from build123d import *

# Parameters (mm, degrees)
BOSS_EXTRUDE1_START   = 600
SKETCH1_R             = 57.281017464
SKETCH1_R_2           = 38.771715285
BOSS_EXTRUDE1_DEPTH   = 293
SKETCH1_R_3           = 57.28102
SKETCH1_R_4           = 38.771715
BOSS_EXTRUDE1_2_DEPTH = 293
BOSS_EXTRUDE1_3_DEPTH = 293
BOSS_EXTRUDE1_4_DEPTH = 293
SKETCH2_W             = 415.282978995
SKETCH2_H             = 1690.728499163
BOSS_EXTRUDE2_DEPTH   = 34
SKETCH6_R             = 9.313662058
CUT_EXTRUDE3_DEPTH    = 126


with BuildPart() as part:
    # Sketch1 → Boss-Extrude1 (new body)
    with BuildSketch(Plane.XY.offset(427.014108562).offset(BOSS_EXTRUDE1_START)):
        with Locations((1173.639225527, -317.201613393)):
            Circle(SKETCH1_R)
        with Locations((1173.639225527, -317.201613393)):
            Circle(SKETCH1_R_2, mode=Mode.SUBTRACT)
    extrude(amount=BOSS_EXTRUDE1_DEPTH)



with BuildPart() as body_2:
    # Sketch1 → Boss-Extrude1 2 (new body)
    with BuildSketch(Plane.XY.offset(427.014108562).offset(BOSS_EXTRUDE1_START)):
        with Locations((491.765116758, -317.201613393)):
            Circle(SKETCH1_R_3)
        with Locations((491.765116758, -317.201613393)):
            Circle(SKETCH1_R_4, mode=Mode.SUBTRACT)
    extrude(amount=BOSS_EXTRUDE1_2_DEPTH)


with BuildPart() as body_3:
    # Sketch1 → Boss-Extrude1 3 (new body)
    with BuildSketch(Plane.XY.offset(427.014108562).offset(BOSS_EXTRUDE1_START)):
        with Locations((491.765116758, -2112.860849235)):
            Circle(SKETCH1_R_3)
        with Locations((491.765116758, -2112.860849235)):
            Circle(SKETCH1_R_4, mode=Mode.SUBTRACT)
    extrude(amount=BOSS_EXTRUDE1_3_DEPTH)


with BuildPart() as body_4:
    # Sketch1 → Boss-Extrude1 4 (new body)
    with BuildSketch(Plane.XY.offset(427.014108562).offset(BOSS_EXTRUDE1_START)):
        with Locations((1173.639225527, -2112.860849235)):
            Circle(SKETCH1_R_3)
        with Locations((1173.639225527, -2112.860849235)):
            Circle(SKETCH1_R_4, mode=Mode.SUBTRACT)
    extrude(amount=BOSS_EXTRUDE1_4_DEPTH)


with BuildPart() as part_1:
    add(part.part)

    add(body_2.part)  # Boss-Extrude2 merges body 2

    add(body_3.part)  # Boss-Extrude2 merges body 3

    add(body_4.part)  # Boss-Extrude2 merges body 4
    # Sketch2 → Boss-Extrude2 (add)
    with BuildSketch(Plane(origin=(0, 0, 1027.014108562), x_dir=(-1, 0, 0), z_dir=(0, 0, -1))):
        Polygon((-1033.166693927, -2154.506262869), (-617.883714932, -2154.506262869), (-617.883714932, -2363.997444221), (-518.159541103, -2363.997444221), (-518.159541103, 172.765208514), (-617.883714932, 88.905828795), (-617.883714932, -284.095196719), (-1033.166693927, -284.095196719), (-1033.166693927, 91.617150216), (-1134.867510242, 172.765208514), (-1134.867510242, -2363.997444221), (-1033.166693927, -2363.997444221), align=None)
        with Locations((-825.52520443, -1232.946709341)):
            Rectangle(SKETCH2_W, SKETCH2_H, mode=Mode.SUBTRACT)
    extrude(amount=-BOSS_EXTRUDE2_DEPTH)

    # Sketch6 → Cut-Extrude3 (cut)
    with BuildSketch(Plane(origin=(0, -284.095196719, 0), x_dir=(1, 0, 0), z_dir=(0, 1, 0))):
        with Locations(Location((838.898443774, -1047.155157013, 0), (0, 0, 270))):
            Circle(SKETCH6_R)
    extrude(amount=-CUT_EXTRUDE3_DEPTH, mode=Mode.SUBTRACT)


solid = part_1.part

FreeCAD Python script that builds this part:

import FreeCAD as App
import Part
import Sketcher
from FreeCAD import Vector


def add_polygon(sketch, points):
    """Adds a closed chain of lines whose ends are joined by coincident constraints."""
    first, n = sketch.GeometryCount, len(points)
    for a, b in zip(points, points[1:] + points[:1]):
        sketch.addGeometry(Part.LineSegment(App.Vector(*a, 0), App.Vector(*b, 0)), False)
    for i in range(n):
        sketch.addConstraint(Sketcher.Constraint("Coincident", first + i, 2, first + (i + 1) % n, 1))

doc = App.newDocument("Part")
body = doc.addObject("PartDesign::Body", "Body")

sketch1 = body.newObject("Sketcher::SketchObject", "Sketch")
sketch1.AttachmentSupport = (doc.getObject("XY_Plane"), [""])
sketch1.MapMode = "FlatFace"
sketch1.AttachmentOffset = App.Placement(Vector(0, 0, 1027.014109), App.Rotation())
sketch1.addGeometry(Part.Circle(Vector(1173.639226, -317.201613, 0), Vector(0, 0, 1), 57.281017), False)
sketch1.addGeometry(Part.Circle(Vector(1173.639226, -317.201613, 0), Vector(0, 0, 1), 38.771715), False)
sketch1.addConstraint(Sketcher.Constraint("Coincident", 1, 3, 0, 3))
sketch1.addConstraint(Sketcher.Constraint("Diameter", 1, 77.543431))
sketch1.addConstraint(Sketcher.Constraint("Diameter", 0, 114.562035))
sketch1.addConstraint(Sketcher.Constraint("DistanceX", -1, 1, 0, 3, 1173.639226))
sketch1.addConstraint(Sketcher.Constraint("DistanceY", 0, 3, -1, 1, 317.201613))
pad1 = body.newObject("PartDesign::Pad", "Pad")
pad1.Profile = sketch1
pad1.Length = 293
body2 = doc.addObject("PartDesign::Body", "Body001")

sketch2 = body2.newObject("Sketcher::SketchObject", "Sketch001")
sketch2.AttachmentSupport = (doc.getObject("XY_Plane001"), [""])
sketch2.MapMode = "FlatFace"
sketch2.AttachmentOffset = App.Placement(Vector(0, 0, 1027.014109), App.Rotation())
sketch2.addGeometry(Part.Circle(Vector(491.765117, -317.201613, 0), Vector(0, 0, 1), 57.28102), False)
sketch2.addGeometry(Part.Circle(Vector(491.765117, -317.201613, 0), Vector(0, 0, 1), 38.771715), False)
sketch2.addConstraint(Sketcher.Constraint("Coincident", 1, 3, 0, 3))
sketch2.addConstraint(Sketcher.Constraint("Diameter", 0, 114.56204))
sketch2.addConstraint(Sketcher.Constraint("Diameter", 1, 77.54343))
sketch2.addConstraint(Sketcher.Constraint("DistanceX", -1, 1, 0, 3, 491.765117))
sketch2.addConstraint(Sketcher.Constraint("DistanceY", 0, 3, -1, 1, 317.201613))
pad2 = body2.newObject("PartDesign::Pad", "Pad001")
pad2.Profile = sketch2
pad2.Length = 293
body3 = doc.addObject("PartDesign::Body", "Body002")

sketch3 = body3.newObject("Sketcher::SketchObject", "Sketch002")
sketch3.AttachmentSupport = (doc.getObject("XY_Plane002"), [""])
sketch3.MapMode = "FlatFace"
sketch3.AttachmentOffset = App.Placement(Vector(0, 0, 1027.014109), App.Rotation())
sketch3.addGeometry(Part.Circle(Vector(491.765117, -2112.860849, 0), Vector(0, 0, 1), 57.28102), False)
sketch3.addGeometry(Part.Circle(Vector(491.765117, -2112.860849, 0), Vector(0, 0, 1), 38.771715), False)
sketch3.addConstraint(Sketcher.Constraint("Coincident", 1, 3, 0, 3))
sketch3.addConstraint(Sketcher.Constraint("Diameter", 0, 114.56204))
sketch3.addConstraint(Sketcher.Constraint("Diameter", 1, 77.54343))
sketch3.addConstraint(Sketcher.Constraint("DistanceY", 0, 3, -1, 1, 2112.860849))
sketch3.addConstraint(Sketcher.Constraint("DistanceX", -1, 1, 0, 3, 491.765117))
pad3 = body3.newObject("PartDesign::Pad", "Pad002")
pad3.Profile = sketch3
pad3.Length = 293
body4 = doc.addObject("PartDesign::Body", "Body003")

sketch4 = body4.newObject("Sketcher::SketchObject", "Sketch003")
sketch4.AttachmentSupport = (doc.getObject("XY_Plane003"), [""])
sketch4.MapMode = "FlatFace"
sketch4.AttachmentOffset = App.Placement(Vector(0, 0, 1027.014109), App.Rotation())
sketch4.addGeometry(Part.Circle(Vector(1173.639226, -2112.860849, 0), Vector(0, 0, 1), 57.28102), False)
sketch4.addGeometry(Part.Circle(Vector(1173.639226, -2112.860849, 0), Vector(0, 0, 1), 38.771715), False)
sketch4.addConstraint(Sketcher.Constraint("Coincident", 1, 3, 0, 3))
sketch4.addConstraint(Sketcher.Constraint("Diameter", 0, 114.56204))
sketch4.addConstraint(Sketcher.Constraint("Diameter", 1, 77.54343))
sketch4.addConstraint(Sketcher.Constraint("DistanceY", 0, 3, -1, 1, 2112.860849))
sketch4.addConstraint(Sketcher.Constraint("DistanceX", -1, 1, 0, 3, 1173.639226))
pad4 = body4.newObject("PartDesign::Pad", "Pad003")
pad4.Profile = sketch4
pad4.Length = 293
body.AllowCompound = True
doc.recompute()

boolean = body.newObject("PartDesign::Boolean", "Boolean")
boolean.Type = "Fuse"
boolean.addObjects([body2])
doc.recompute()

boolean2 = body.newObject("PartDesign::Boolean", "Boolean001")
boolean2.Type = "Fuse"
boolean2.addObjects([body3])
doc.recompute()

boolean3 = body.newObject("PartDesign::Boolean", "Boolean002")
boolean3.Type = "Fuse"
boolean3.addObjects([body4])

sketch5 = body.newObject("Sketcher::SketchObject", "Sketch004")
sketch5.AttachmentSupport = (doc.getObject("XY_Plane"), [""])
sketch5.MapMode = "FlatFace"
sketch5.AttachmentOffset = App.Placement(Vector(0, 0, 1027.014109), App.Rotation())
add_polygon(sketch5, [(1033.166694, -2154.506263), (617.883715, -2154.506263), (617.883715, -2363.997444), (518.159541, -2363.997444), (518.159541, 172.765209), (617.883715, 88.905829), (617.883715, -284.095197), (1033.166694, -284.095197), (1033.166694, 91.61715), (1134.86751, 172.765209), (1134.86751, -2363.997444), (1033.166694, -2363.997444)])
add_polygon(sketch5, [(617.883715, -2078.310959), (1033.166694, -2078.310959), (1033.166694, -387.58246), (617.883715, -387.58246)])
sketch5.addConstraint(Sketcher.Constraint("Horizontal", 0))
sketch5.addConstraint(Sketcher.Constraint("Vertical", 1))
sketch5.addConstraint(Sketcher.Constraint("Horizontal", 2))
sketch5.addConstraint(Sketcher.Constraint("Vertical", 3))
sketch5.addConstraint(Sketcher.Constraint("Vertical", 5))
sketch5.addConstraint(Sketcher.Constraint("Horizontal", 6))
sketch5.addConstraint(Sketcher.Constraint("Vertical", 7))
sketch5.addConstraint(Sketcher.Constraint("Vertical", 9))
sketch5.addConstraint(Sketcher.Constraint("Horizontal", 10))
sketch5.addConstraint(Sketcher.Constraint("Vertical", 11))
sketch5.addConstraint(Sketcher.Constraint("Horizontal", 12))
sketch5.addConstraint(Sketcher.Constraint("Vertical", 13))
sketch5.addConstraint(Sketcher.Constraint("Horizontal", 14))
sketch5.addConstraint(Sketcher.Constraint("Vertical", 15))
sketch5.addConstraint(Sketcher.Constraint("Horizontal", 3, 2, 8, 2))
sketch5.addConstraint(Sketcher.Constraint("Horizontal", 2, 2, 9, 2))
sketch5.addConstraint(Sketcher.Constraint("Vertical", 1, 2, 4, 2))
sketch5.addConstraint(Sketcher.Constraint("Vertical", 7, 2, 10, 2))
sketch5.addConstraint(Sketcher.Constraint("Vertical", 11, 2, 12, 2))
sketch5.addConstraint(Sketcher.Constraint("Vertical", 5, 2, 14, 2))
sketch5.addConstraint(Sketcher.Constraint("DistanceY", 13, 1, 13, 2, 1690.728499))
sketch5.addConstraint(Sketcher.Constraint("DistanceX", 0, 2, 0, 1, 415.282979))
sketch5.addConstraint(Sketcher.Constraint("DistanceY", 1, 2, 1, 1, 209.491181))
sketch5.addConstraint(Sketcher.Constraint("Distance", 8, 130.107891))
sketch5.addConstraint(Sketcher.Constraint("DistanceX", 2, 2, 2, 1, 99.724174))
sketch5.addConstraint(Sketcher.Constraint("DistanceX", 10, 2, 10, 1, 101.700816))
sketch5.addConstraint(Sketcher.Constraint("DistanceY", 3, 1, 3, 2, 2536.762653))
sketch5.addConstraint(Sketcher.Constraint("DistanceY", 5, 2, 5, 1, 373.001026))
sketch5.addConstraint(Sketcher.Constraint("DistanceY", 7, 1, 7, 2, 375.712347))
sketch5.addConstraint(Sketcher.Constraint("DistanceX", -1, 1, 2, 2, 518.159541))
sketch5.addConstraint(Sketcher.Constraint("DistanceY", -1, 1, 3, 2, 172.765209))
sketch5.addConstraint(Sketcher.Constraint("DistanceY", 12, 2, -1, 1, 2078.310959))
pad5 = body.newObject("PartDesign::Pad", "Pad004")
pad5.Profile = sketch5
pad5.Length = 34

sketch6 = body.newObject("Sketcher::SketchObject", "Sketch005")
sketch6.AttachmentSupport = (doc.getObject("XZ_Plane"), [""])
sketch6.MapMode = "FlatFace"
sketch6.AttachmentOffset = App.Placement(Vector(0, 0, 284.095197), App.Rotation())
sketch6.addGeometry(Part.Circle(Vector(838.898444, 1047.155157, 0), Vector(0, 0, 1), 9.313662), False)
sketch6.addConstraint(Sketcher.Constraint("Diameter", 0, 18.627324))
sketch6.addConstraint(Sketcher.Constraint("DistanceX", -1, 1, 0, 3, 838.898444))
sketch6.addConstraint(Sketcher.Constraint("DistanceY", -1, 1, 0, 3, 1047.155157))
pocket1 = body.newObject("PartDesign::Pocket", "Pocket")
pocket1.Profile = sketch6
pocket1.Length = 126
pocket1.Reversed = True

doc.recompute()
